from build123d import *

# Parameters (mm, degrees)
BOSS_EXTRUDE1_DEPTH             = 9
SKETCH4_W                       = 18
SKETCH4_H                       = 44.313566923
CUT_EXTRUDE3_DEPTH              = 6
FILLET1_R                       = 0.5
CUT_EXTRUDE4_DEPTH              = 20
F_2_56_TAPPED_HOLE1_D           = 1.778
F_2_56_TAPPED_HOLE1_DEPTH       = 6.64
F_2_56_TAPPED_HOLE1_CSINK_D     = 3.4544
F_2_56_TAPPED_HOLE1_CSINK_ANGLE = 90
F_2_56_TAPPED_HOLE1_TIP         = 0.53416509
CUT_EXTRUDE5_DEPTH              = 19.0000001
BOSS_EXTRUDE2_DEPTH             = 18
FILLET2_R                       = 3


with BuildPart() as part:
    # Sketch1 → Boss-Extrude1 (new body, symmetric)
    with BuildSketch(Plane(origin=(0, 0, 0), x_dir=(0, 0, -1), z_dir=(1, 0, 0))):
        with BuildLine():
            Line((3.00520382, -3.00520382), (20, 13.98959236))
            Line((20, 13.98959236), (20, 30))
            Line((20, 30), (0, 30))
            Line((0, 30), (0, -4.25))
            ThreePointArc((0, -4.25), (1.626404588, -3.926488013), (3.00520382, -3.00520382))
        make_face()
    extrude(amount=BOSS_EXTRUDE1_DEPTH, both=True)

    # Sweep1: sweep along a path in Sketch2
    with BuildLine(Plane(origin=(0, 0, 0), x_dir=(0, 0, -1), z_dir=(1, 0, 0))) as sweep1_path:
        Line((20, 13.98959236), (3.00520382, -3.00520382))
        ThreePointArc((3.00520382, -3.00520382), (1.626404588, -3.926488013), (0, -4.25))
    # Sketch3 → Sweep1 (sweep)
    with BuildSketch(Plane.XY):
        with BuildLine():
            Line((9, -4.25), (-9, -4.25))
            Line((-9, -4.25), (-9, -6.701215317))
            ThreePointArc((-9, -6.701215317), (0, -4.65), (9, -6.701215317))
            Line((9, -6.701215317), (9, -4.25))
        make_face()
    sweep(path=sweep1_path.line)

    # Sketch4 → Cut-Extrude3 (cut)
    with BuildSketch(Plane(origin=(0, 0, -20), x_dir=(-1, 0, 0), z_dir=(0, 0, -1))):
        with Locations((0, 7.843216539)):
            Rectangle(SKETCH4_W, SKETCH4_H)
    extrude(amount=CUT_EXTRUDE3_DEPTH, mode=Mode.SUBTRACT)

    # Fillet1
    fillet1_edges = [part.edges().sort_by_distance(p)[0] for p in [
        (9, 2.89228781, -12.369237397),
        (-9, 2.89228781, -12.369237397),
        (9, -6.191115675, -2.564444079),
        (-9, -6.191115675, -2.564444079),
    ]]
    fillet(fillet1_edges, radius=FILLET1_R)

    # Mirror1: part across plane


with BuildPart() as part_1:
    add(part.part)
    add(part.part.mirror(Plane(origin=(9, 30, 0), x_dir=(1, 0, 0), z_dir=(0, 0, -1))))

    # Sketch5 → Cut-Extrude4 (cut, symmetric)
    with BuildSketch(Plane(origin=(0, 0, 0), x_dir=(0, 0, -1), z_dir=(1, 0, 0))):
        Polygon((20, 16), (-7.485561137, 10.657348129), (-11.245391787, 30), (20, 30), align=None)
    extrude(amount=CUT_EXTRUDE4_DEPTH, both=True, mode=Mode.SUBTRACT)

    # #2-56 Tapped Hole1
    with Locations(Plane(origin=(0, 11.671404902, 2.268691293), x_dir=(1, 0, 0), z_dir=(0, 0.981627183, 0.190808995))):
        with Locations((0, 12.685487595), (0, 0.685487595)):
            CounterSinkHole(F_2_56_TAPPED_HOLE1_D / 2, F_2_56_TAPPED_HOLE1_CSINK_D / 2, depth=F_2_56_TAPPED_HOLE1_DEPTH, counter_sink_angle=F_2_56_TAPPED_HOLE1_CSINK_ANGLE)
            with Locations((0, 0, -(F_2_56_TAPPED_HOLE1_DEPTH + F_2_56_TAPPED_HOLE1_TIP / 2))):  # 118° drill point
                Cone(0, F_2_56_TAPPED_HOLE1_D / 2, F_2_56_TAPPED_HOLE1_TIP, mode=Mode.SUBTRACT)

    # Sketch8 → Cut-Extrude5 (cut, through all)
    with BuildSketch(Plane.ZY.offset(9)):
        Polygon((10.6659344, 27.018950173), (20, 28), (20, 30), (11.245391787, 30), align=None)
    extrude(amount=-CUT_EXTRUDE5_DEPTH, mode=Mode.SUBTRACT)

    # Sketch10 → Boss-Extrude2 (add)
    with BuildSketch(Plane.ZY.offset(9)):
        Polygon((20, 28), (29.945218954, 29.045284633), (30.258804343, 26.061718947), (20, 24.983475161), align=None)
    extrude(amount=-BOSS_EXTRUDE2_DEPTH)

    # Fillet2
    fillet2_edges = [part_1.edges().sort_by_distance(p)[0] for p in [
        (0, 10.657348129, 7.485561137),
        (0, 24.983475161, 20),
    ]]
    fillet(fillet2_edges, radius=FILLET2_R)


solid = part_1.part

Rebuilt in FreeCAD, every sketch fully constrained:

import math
import FreeCAD as App
import Part
import Sketcher
from FreeCAD import Vector
Q = App.Units.Quantity


def edges_at(feature, points):
    """Names of the edges that pass closest to the given points."""
    edges = feature.Shape.Edges
    near = lambda p: min(range(len(edges)), key=lambda i: edges[i].distToShape(Part.Vertex(*p))[0])
    return sorted({f"Edge{near(p) + 1}" for p in points})

doc = App.newDocument("Part")
params = doc.addObject("Spreadsheet::Sheet", "Params")
for row, (alias, value) in enumerate([
    ("sketch1_height", "20 mm"),
    ("sketch1_radius", "4.25 mm"),
    ("pad1_length", "18 mm"),
    ("sketch2_width", "18 mm"),
    ("sketch2_radius", "20.77 mm"),
    ("sketch3_radius", "4.25 mm"),
    ("sketch4_width", "18 mm"),
    ("pocket1_length", "6 mm"),
    ("fillet_radius", "0.5 mm"),
    ("sketch5_width", "14 mm"),
    ("sketch5_length", "28 mm"),
    ("pocket2_length", "40 mm"),
    ("hole_diameter", "1.778 mm"),
    ("hole_depth", "6.64 mm"),
    ("hole_csink_diameter", "3.4544 mm"),
    ("sketch7_width", "2 mm"),
    ("sketch8_length", "10 mm"),
    ("sketch8_length2", "3 mm"),
    ("pad2_length", "18 mm"),
    ("fillet2_radius", "3 mm"),
], start=1):
    params.set(f"A{row}", alias)
    params.set(f"B{row}", "=" + value)
    params.setAlias(f"B{row}", alias)

body = doc.addObject("PartDesign::Body", "Body")

# Sketch on YZ plane
sketch1 = body.newObject("Sketcher::SketchObject", "Sketch")
sketch1.AttachmentSupport = (doc.getObject("YZ_Plane"), [""])
sketch1.MapMode = "FlatFace"
sketch1.addGeometry(Part.LineSegment(Vector(-3, -3, 0), Vector(14, -20, 0)), False)
sketch1.addGeometry(Part.LineSegment(Vector(14, -20, 0), Vector(30, -20, 0)), False)
sketch1.addGeometry(Part.LineSegment(Vector(30, -20, 0), Vector(30, 0, 0)), False)
sketch1.addGeometry(Part.LineSegment(Vector(30, 0, 0), Vector(-4.2, 0, 0)), False)
sketch1.addGeometry(Part.ArcOfCircle(Part.Circle(Vector(0, 0, 0), Vector(0, 0, 1), 4.2), math.radians(180), math.radians(225)), False)
sketch1.addConstraint(Sketcher.Constraint("Coincident", 0, 2, 1, 1))
sketch1.addConstraint(Sketcher.Constraint("Coincident", 1, 2, 2, 1))
sketch1.addConstraint(Sketcher.Constraint("Coincident", 2, 2, 3, 1))
sketch1.addConstraint(Sketcher.Constraint("Coincident", 3, 2, 4, 1))
sketch1.addConstraint(Sketcher.Constraint("Tangent", 4, 2, 0, 1))
sketch1.addConstraint(Sketcher.Constraint("Horizontal", 1))
sketch1.addConstraint(Sketcher.Constraint("Vertical", 2))
sketch1.addConstraint(Sketcher.Constraint("Horizontal", 3))
sketch1.addConstraint(Sketcher.Constraint("Coincident", 4, 3, -1, 1))
sketch1.addConstraint(Sketcher.Constraint("PointOnObject", 2, 2, -1))
sketch1.addConstraint(Sketcher.Constraint("DistanceY", 2, 1, 2, 2, 20.0))
sketch1.addConstraint(Sketcher.Constraint("Angle", 0, Q("-45 deg")))
sketch1.addConstraint(Sketcher.Constraint("Radius", 4, 4.25))
sketch1.addConstraint(Sketcher.Constraint("DistanceX", -1, 1, 1, 2, 30.0))
sketch1.setExpression("Constraints[10]", "Params.sketch1_height")
sketch1.setExpression("Constraints[12]", "Params.sketch1_radius")
pad1 = body.newObject("PartDesign::Pad", "Pad")
pad1.Profile = sketch1
pad1.setExpression("Length", "Params.pad1_length")
pad1.Midplane = True

# Sketch on XY plane
sketch2 = body.newObject("Sketcher::SketchObject", "Sketch001")
sketch2.AttachmentSupport = (doc.getObject("XY_Plane"), [""])
sketch2.MapMode = "FlatFace"
sketch2.addGeometry(Part.LineSegment(Vector(9, -4.2, 0), Vector(-9, -4.2, 0)), False)
sketch2.addGeometry(Part.LineSegment(Vector(-9, -4.2, 0), Vector(-9, -6.7, 0)), False)
sketch2.addGeometry(Part.ArcOfCircle(Part.Circle(Vector(0, -25.4, 0), Vector(0, 0, 1), 20.8), math.radians(64), math.radians(116)), False)
sketch2.addGeometry(Part.LineSegment(Vector(9, -6.7, 0), Vector(9, -4.2, 0)), False)
sketch2.addConstraint(Sketcher.Constraint("Coincident", 0, 2, 1, 1))
sketch2.addConstraint(Sketcher.Constraint("Coincident", 1, 2, 2, 2))
sketch2.addConstraint(Sketcher.Constraint("Coincident", 2, 1, 3, 1))
sketch2.addConstraint(Sketcher.Constraint("Coincident", 3, 2, 0, 1))
sketch2.addConstraint(Sketcher.Constraint("Horizontal", 0))
sketch2.addConstraint(Sketcher.Constraint("Vertical", 1))
sketch2.addConstraint(Sketcher.Constraint("Vertical", 3))
sketch2.addConstraint(Sketcher.Constraint("Symmetric", 1, 2, 2, 1, -2))
sketch2.addConstraint(Sketcher.Constraint("DistanceX", 0, 2, 0, 1, 18.0))
sketch2.addConstraint(Sketcher.Constraint("Radius", 2, 20.77))
sketch2.addConstraint(Sketcher.Constraint("DistanceY", 2, 3, -1, 1, 25.42))
sketch2.addConstraint(Sketcher.Constraint("DistanceY", 0, 2, -1, 1, 4.25))
sketch2.setExpression("Constraints[8]", "Params.sketch2_width")
sketch2.setExpression("Constraints[9]", "Params.sketch2_radius")

# Sketch on YZ plane
sketch3 = body.newObject("Sketcher::SketchObject", "Sketch002")
sketch3.AttachmentSupport = (doc.getObject("YZ_Plane"), [""])
sketch3.MapMode = "FlatFace"
sketch3.addGeometry(Part.LineSegment(Vector(14, -20, 0), Vector(-3, -3, 0)), False)
sketch3.addGeometry(Part.ArcOfCircle(Part.Circle(Vector(0, 0, 0), Vector(0, 0, 1), 4.2), math.radians(180), math.radians(225)), False)
sketch3.addConstraint(Sketcher.Constraint("Tangent", 0, 2, 1, 2))
sketch3.addConstraint(Sketcher.Constraint("Coincident", 1, 3, -1, 1))
sketch3.addConstraint(Sketcher.Constraint("PointOnObject", 1, 1, -1))
sketch3.addConstraint(Sketcher.Constraint("Angle", 0, Q("135 deg")))
sketch3.addConstraint(Sketcher.Constraint("Radius", 1, 4.25))
sketch3.addConstraint(Sketcher.Constraint("DistanceY", 0, 1, -1, 1, 20.0))
sketch3.setExpression("Constraints[4]", "Params.sketch3_radius")
doc.recompute()

additivepipe = body.newObject("PartDesign::AdditivePipe", "AdditivePipe")
additivepipe.Profile = sketch2
additivepipe.Spine = (sketch3, ["Edge1", "Edge2"])

# Sketch on XY plane
sketch4 = body.newObject("Sketcher::SketchObject", "Sketch003")
sketch4.AttachmentSupport = (doc.getObject("XY_Plane"), [""])
sketch4.MapMode = "FlatFace"
sketch4.AttachmentOffset = App.Placement(Vector(0, 0, -20), App.Rotation())
sketch4.addGeometry(Part.LineSegment(Vector(9, 30, 0), Vector(9, -14, 0)), False)
sketch4.addGeometry(Part.LineSegment(Vector(9, -14, 0), Vector(-9, -14, 0)), False)
sketch4.addGeometry(Part.LineSegment(Vector(-9, -14, 0), Vector(-9, 30, 0)), False)
sketch4.addGeometry(Part.LineSegment(Vector(-9, 30, 0), Vector(9, 30, 0)), False)
sketch4.addConstraint(Sketcher.Constraint("Coincident", 0, 2, 1, 1))
sketch4.addConstraint(Sketcher.Constraint("Coincident", 1, 2, 2, 1))
sketch4.addConstraint(Sketcher.Constraint("Coincident", 2, 2, 3, 1))
sketch4.addConstraint(Sketcher.Constraint("Coincident", 3, 2, 0, 1))
sketch4.addConstraint(Sketcher.Constraint("Vertical", 0))
sketch4.addConstraint(Sketcher.Constraint("Horizontal", 1))
sketch4.addConstraint(Sketcher.Constraint("Vertical", 2))
sketch4.addConstraint(Sketcher.Constraint("Horizontal", 3))
sketch4.addConstraint(Sketcher.Constraint("DistanceX", 1, 2, 1, 1, 18.0))
sketch4.addConstraint(Sketcher.Constraint("DistanceX", -1, 1, 0, 2, 9.0))
sketch4.addConstraint(Sketcher.Constraint("DistanceY", -1, 1, 2, 2, 30.0))
sketch4.addConstraint(Sketcher.Constraint("DistanceY", 0, 2, 0, 1, 44.313567))
sketch4.setExpression("Constraints[8]", "Params.sketch4_width")
pocket1 = body.newObject("PartDesign::Pocket", "Pocket")
pocket1.Profile = sketch4
pocket1.setExpression("Length", "Params.pocket1_length")
doc.recompute()

fillet = body.newObject("PartDesign::Fillet", "Fillet")
fillet.Base = (pocket1, edges_at(pocket1, [
    (9, 2.892, -12.369),
    (-9, 2.892, -12.369),
    (9, -6.191, -2.564),
    (-9, -6.191, -2.564),
]))
fillet.setExpression("Radius", "Params.fillet_radius")
body2 = doc.addObject("PartDesign::Body", "Body001")
doc.recompute()

body2.BaseFeature = body
doc.recompute()

mirroring = doc.addObject("Part::Mirroring", "Mirroring")
mirroring.Source = body
mirroring.Base = Vector(9, 30, 0)
mirroring.Normal = Vector(0, 0, -1)
body3 = doc.addObject("PartDesign::Body", "Body002")
body3.BaseFeature = mirroring
boolean = body2.newObject("PartDesign::Boolean", "Boolean")
boolean.Type = "Fuse"
boolean.addObjects([body3])
doc.recompute()

# Sketch on YZ plane
sketch5 = body2.newObject("Sketcher::SketchObject", "Sketch004")
sketch5.AttachmentSupport = (doc.getObject("YZ_Plane001"), [""])
sketch5.MapMode = "FlatFace"
sketch5.addGeometry(Part.LineSegment(Vector(11, 7, 0), Vector(16, -20, 0)), False)
sketch5.addGeometry(Part.LineSegment(Vector(16, -20, 0), Vector(30, -20, 0)), False)
sketch5.addGeometry(Part.LineSegment(Vector(30, -20, 0), Vector(30, 11, 0)), False)
sketch5.addGeometry(Part.LineSegment(Vector(30, 11, 0), Vector(11, 7, 0)), False)
sketch5.addConstraint(Sketcher.Constraint("Coincident", 0, 2, 1, 1))
sketch5.addConstraint(Sketcher.Constraint("Coincident", 1, 2, 2, 1))
sketch5.addConstraint(Sketcher.Constraint("Coincident", 2, 2, 3, 1))
sketch5.addConstraint(Sketcher.Constraint("Coincident", 3, 2, 0, 1))
sketch5.addConstraint(Sketcher.Constraint("Horizontal", 1))
sketch5.addConstraint(Sketcher.Constraint("Vertical", 2))
sketch5.addConstraint(Sketcher.Constraint("Perpendicular", 0, 3))
sketch5.addConstraint(Sketcher.Constraint("DistanceX", 1, 1, 1, 2, 14.0))
sketch5.addConstraint(Sketcher.Constraint("Angle", 0, Q("-79 deg")))
sketch5.addConstraint(Sketcher.Constraint("Distance", 0, 28.0))
sketch5.addConstraint(Sketcher.Constraint("DistanceX", -1, 1, 0, 2, 16.0))
sketch5.addConstraint(Sketcher.Constraint("DistanceY", 0, 2, -1, 1, 20.0))
sketch5.setExpression("Constraints[7]", "Params.sketch5_width")
sketch5.setExpression("Constraints[9]", "Params.sketch5_length")
pocket2 = body2.newObject("PartDesign::Pocket", "Pocket001")
pocket2.Profile = sketch5
pocket2.setExpression("Length", "Params.pocket2_length")
pocket2.Midplane = True

# Sketch on an angled plane
sketch6 = body2.newObject("Sketcher::SketchObject", "Sketch005")
sketch6.Placement = App.Placement(Vector(0, 11.671405, 2.268691), App.Rotation(Vector(1, 0, 0), Vector(0, 0.190808995, -0.981627184), Vector(0, 0.981627184, 0.190808995), "ZXY"))
sketch6.addGeometry(Part.Circle(Vector(0, 12.7, 0), Vector(0, 0, 1), 0.9), False)
sketch6.addGeometry(Part.Circle(Vector(0, 0.7, 0), Vector(0, 0, 1), 0.9), False)
sketch6.addConstraint(Sketcher.Constraint("Equal", 0, 1))
sketch6.addConstraint(Sketcher.Constraint("PointOnObject", 0, 3, -2))
sketch6.addConstraint(Sketcher.Constraint("PointOnObject", 1, 3, -2))
sketch6.addConstraint(Sketcher.Constraint("Diameter", 0, 1.778))
sketch6.addConstraint(Sketcher.Constraint("DistanceY", 1, 3, 0, 3, 12.0))
sketch6.addConstraint(Sketcher.Constraint("DistanceY", -1, 1, 0, 3, 12.685488))
doc.recompute()
hole = body2.newObject("PartDesign::Hole", "Hole")
hole.Profile = sketch6
hole.ThreadType = "None"
hole.setExpression("Diameter", "Params.hole_diameter")
hole.DepthType = "Dimension"
hole.setExpression("Depth", "Params.hole_depth")
hole.DrillPoint = "Angled"
hole.DrillPointAngle = 118
hole.HoleCutType = "Countersink"
hole.setExpression("HoleCutDiameter", "Params.hole_csink_diameter")
hole.HoleCutCountersinkAngle = 90

# Sketch on YZ plane
sketch7 = body2.newObject("Sketcher::SketchObject", "Sketch006")
sketch7.AttachmentSupport = (doc.getObject("YZ_Plane001"), [""])
sketch7.MapMode = "FlatFace"
sketch7.AttachmentOffset = App.Placement(Vector(0, 0, -9), App.Rotation())
sketch7.addGeometry(Part.LineSegment(Vector(27, 10.7, 0), Vector(28, 20, 0)), False)
sketch7.addGeometry(Part.LineSegment(Vector(28, 20, 0), Vector(30, 20, 0)), False)
sketch7.addGeometry(Part.LineSegment(Vector(30, 20, 0), Vector(30, 11.2, 0)), False)
sketch7.addGeometry(Part.LineSegment(Vector(30, 11.2, 0), Vector(27, 10.7, 0)), False)
sketch7.addConstraint(Sketcher.Constraint("Coincident", 0, 2, 1, 1))
sketch7.addConstraint(Sketcher.Constraint("Coincident", 1, 2, 2, 1))
sketch7.addConstraint(Sketcher.Constraint("Coincident", 2, 2, 3, 1))
sketch7.addConstraint(Sketcher.Constraint("Coincident", 3, 2, 0, 1))
sketch7.addConstraint(Sketcher.Constraint("Horizontal", 1))
sketch7.addConstraint(Sketcher.Constraint("Vertical", 2))
sketch7.addConstraint(Sketcher.Constraint("DistanceX", 1, 1, 1, 2, 2.0))
sketch7.addConstraint(Sketcher.Constraint("Angle", 0, Q("84 deg")))
sketch7.addConstraint(Sketcher.Constraint("Angle", 3, Q("-169 deg")))
sketch7.addConstraint(Sketcher.Constraint("DistanceX", -1, 1, 0, 2, 28.0))
sketch7.addConstraint(Sketcher.Constraint("DistanceY", -1, 1, 0, 2, 20.0))
sketch7.addConstraint(Sketcher.Constraint("DistanceY", 2, 2, 2, 1, 8.754608))
sketch7.setExpression("Constraints[6]", "Params.sketch7_width")
pocket3 = body2.newObject("PartDesign::Pocket", "Pocket002")
pocket3.Profile = sketch7
pocket3.Type = "ThroughAll"
pocket3.Reversed = True

# Sketch on YZ plane
sketch8 = body2.newObject("Sketcher::SketchObject", "Sketch007")
sketch8.AttachmentSupport = (doc.getObject("YZ_Plane001"), [""])
sketch8.MapMode = "FlatFace"
sketch8.AttachmentOffset = App.Placement(Vector(0, 0, -9), App.Rotation())
sketch8.addGeometry(Part.LineSegment(Vector(29, 29.9, 0), Vector(28, 20, 0)), False)
sketch8.addGeometry(Part.LineSegment(Vector(28, 20, 0), Vector(25, 20, 0)), False)
sketch8.addGeometry(Part.LineSegment(Vector(25, 20, 0), Vector(26.1, 30.3, 0)), False)
sketch8.addGeometry(Part.LineSegment(Vector(26.1, 30.3, 0), Vector(29, 29.9, 0)), False)
sketch8.addConstraint(Sketcher.Constraint("Coincident", 0, 2, 1, 1))
sketch8.addConstraint(Sketcher.Constraint("Coincident", 1, 2, 2, 1))
sketch8.addConstraint(Sketcher.Constraint("Coincident", 2, 2, 3, 1))
sketch8.addConstraint(Sketcher.Constraint("Coincident", 3, 2, 0, 1))
sketch8.addConstraint(Sketcher.Constraint("Horizontal", 1))
sketch8.addConstraint(Sketcher.Constraint("Parallel", 0, 2))
sketch8.addConstraint(Sketcher.Constraint("Perpendicular", 2, 3))
sketch8.addConstraint(Sketcher.Constraint("Angle", 0, Q("-96 deg")))
sketch8.addConstraint(Sketcher.Constraint("Distance", 0, 10.0))
sketch8.addConstraint(Sketcher.Constraint("Distance", 3, 3.0))
sketch8.addConstraint(Sketcher.Constraint("DistanceX", -1, 1, 0, 2, 28.0))
sketch8.addConstraint(Sketcher.Constraint("DistanceY", -1, 1, 0, 2, 20.0))
sketch8.setExpression("Constraints[8]", "Params.sketch8_length")
sketch8.setExpression("Constraints[9]", "Params.sketch8_length2")
pad2 = body2.newObject("PartDesign::Pad", "Pad001")
pad2.Profile = sketch8
pad2.setExpression("Length", "Params.pad2_length")
doc.recompute()

fillet2 = body2.newObject("PartDesign::Fillet", "Fillet001")
fillet2.Base = (pad2, edges_at(pad2, [(0, 10.657, 7.486), (0, 24.983, 20)]))
fillet2.setExpression("Radius", "Params.fillet2_radius")
mirroring.Visibility = False

doc.recompute()
